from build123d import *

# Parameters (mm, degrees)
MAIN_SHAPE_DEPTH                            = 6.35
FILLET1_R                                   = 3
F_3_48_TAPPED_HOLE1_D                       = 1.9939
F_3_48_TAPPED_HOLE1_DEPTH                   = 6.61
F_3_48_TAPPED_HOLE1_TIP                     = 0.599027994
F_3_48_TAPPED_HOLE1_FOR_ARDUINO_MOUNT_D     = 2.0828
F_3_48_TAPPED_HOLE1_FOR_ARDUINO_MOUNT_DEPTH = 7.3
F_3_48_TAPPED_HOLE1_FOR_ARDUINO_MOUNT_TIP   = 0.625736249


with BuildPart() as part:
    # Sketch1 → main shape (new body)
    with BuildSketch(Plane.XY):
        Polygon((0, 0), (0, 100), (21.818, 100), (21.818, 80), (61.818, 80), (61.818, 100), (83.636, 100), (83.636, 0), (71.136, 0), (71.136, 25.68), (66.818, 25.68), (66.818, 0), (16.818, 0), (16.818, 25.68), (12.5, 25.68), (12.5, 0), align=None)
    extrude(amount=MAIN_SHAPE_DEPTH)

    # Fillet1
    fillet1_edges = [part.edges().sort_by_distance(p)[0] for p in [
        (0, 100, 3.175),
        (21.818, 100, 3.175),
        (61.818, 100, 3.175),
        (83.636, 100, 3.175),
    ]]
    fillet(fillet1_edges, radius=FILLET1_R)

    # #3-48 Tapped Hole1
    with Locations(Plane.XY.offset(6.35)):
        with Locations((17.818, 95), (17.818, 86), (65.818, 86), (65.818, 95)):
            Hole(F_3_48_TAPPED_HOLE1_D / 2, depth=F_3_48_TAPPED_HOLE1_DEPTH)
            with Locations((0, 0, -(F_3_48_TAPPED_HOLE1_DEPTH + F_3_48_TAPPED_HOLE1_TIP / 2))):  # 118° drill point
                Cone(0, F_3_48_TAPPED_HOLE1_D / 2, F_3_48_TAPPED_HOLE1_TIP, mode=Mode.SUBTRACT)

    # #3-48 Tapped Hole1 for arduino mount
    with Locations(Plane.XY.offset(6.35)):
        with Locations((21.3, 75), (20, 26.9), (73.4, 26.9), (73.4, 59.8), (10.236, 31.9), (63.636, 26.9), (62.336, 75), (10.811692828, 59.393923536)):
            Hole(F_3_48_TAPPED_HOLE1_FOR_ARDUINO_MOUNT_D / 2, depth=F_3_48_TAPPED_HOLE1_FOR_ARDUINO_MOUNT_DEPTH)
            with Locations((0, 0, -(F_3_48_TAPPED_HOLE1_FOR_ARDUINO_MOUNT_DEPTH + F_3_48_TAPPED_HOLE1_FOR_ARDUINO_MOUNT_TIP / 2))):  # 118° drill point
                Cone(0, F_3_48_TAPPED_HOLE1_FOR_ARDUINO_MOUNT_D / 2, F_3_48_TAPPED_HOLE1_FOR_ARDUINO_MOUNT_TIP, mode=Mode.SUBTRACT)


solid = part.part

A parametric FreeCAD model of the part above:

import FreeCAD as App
import Part
import Sketcher


def edges_at(feature, points):
    """Names of the edges that pass closest to the given points."""
    edges = feature.Shape.Edges
    near = lambda p: min(range(len(edges)), key=lambda i: edges[i].distToShape(Part.Vertex(*p))[0])
    return sorted({f"Edge{near(p) + 1}" for p in points})


def add_polygon(sketch, points):
    """Adds a closed chain of lines whose ends are joined by coincident constraints."""
    first, n = sketch.GeometryCount, len(points)
    for a, b in zip(points, points[1:] + points[:1]):
        sketch.addGeometry(Part.LineSegment(App.Vector(*a, 0), App.Vector(*b, 0)), False)
    for i in range(n):
        sketch.addConstraint(Sketcher.Constraint("Coincident", first + i, 2, first + (i + 1) % n, 1))

doc = App.newDocument("Part")
body = doc.addObject("PartDesign::Body", "Body")

# Sketch on XY plane
sketch1 = doc.addObject("Sketcher::SketchObject", "Sketch")
body.addObject(sketch1)
sketch1.AttachmentSupport = (doc.XY_Plane, [""])
sketch1.MapMode = "FlatFace"
add_polygon(sketch1, [(0, 100), (0, 0), (12.5, 0), (12.5, 25.7), (16.8, 25.7), (16.8, 0), (66.8, 0), (66.8, 25.7), (71.1, 25.7), (71.1, 0), (83.6, 0), (83.6, 100), (61.8, 100), (61.8, 80), (21.8, 80), (21.8, 100)])  # lines 0-15
sketch1.addConstraint([
    Sketcher.Constraint("Vertical", 0),
    Sketcher.Constraint("Horizontal", 1),
    Sketcher.Constraint("Vertical", 2),
    Sketcher.Constraint("Horizontal", 3),
    Sketcher.Constraint("Vertical", 4),
    Sketcher.Constraint("Horizontal", 5),
    Sketcher.Constraint("Vertical", 6),
    Sketcher.Constraint("Horizontal", 7),
    Sketcher.Constraint("Vertical", 8),
    Sketcher.Constraint("Horizontal", 9),
    Sketcher.Constraint("Vertical", 10),
    Sketcher.Constraint("Horizontal", 11),
    Sketcher.Constraint("Vertical", 12),
    Sketcher.Constraint("Horizontal", 13),
    Sketcher.Constraint("Vertical", 14),
    Sketcher.Constraint("Horizontal", 15),
    Sketcher.Constraint("Coincident", 0, 2, -1, 1),
    Sketcher.Constraint("PointOnObject", 4, 2, -1),
    Sketcher.Constraint("PointOnObject", 8, 2, -1),
    Sketcher.Constraint("Horizontal", 3, 2, 6, 2),
    Sketcher.Constraint("Horizontal", 11, 2, 14, 2),
    Sketcher.Constraint("Equal", 3, 7),
    Sketcher.Constraint("Equal", 1, 9),
    Sketcher.Constraint("Equal", 11, 15),
    Sketcher.Constraint("DistanceX", 5, 1, 5, 2, 50.0),
    Sketcher.Constraint("DistanceX", 13, 2, 13, 1, 40.0),
    Sketcher.Constraint("DistanceY", 0, 2, 0, 1, 100.0),
    Sketcher.Constraint("DistanceY", 12, 2, 12, 1, 20.0),
    Sketcher.Constraint("DistanceX", 1, 1, 1, 2, 12.5),
    Sketcher.Constraint("DistanceY", 2, 1, 2, 2, 25.68),
    Sketcher.Constraint("DistanceX", 3, 1, 3, 2, 4.318),
])
pad1 = doc.addObject("PartDesign::Pad", "Pad")
body.addObject(pad1)
pad1.Profile = sketch1
pad1.Length = 6.35
doc.recompute()

fillet = doc.addObject("PartDesign::Fillet", "Fillet")
body.addObject(fillet)
fillet.Base = (pad1, edges_at(pad1, [
    (0, 100, 3.175),
    (21.818, 100, 3.175),
    (61.818, 100, 3.175),
    (83.636, 100, 3.175),
]))
fillet.Radius = 3

# Sketch on XY plane
sketch2 = doc.addObject("Sketcher::SketchObject", "Sketch001")
body.addObject(sketch2)
sketch2.AttachmentSupport = (doc.XY_Plane, [""])
sketch2.MapMode = "FlatFace"
sketch2.AttachmentOffset = App.Placement(App.Vector(0, 0, 6.35), App.Rotation())
sketch2.addGeometry([
    Part.Circle(App.Vector(17.8, 95, 0), App.Vector(0, 0, 1), 1),
    Part.Circle(App.Vector(17.8, 86, 0), App.Vector(0, 0, 1), 1),
    Part.Circle(App.Vector(65.8, 86, 0), App.Vector(0, 0, 1), 1),
    Part.Circle(App.Vector(65.8, 95, 0), App.Vector(0, 0, 1), 1),
], False)
sketch2.addConstraint([
    Sketcher.Constraint("Equal", 0, 1),
    Sketcher.Constraint("Equal", 1, 2),
    Sketcher.Constraint("Equal", 2, 3),
    Sketcher.Constraint("Horizontal", 1, 3, 2, 3),
    Sketcher.Constraint("Horizontal", 0, 3, 3, 3),
    Sketcher.Constraint("Vertical", 0, 3, 1, 3),
    Sketcher.Constraint("Vertical", 2, 3, 3, 3),
    Sketcher.Constraint("DistanceY", -1, 1, 0, 3, 95.0),
    Sketcher.Constraint("DistanceY", -1, 1, 1, 3, 86.0),
    Sketcher.Constraint("DistanceX", 1, 3, 2, 3, 48.0),
    Sketcher.Constraint("Diameter", 0, 1.9939),
    Sketcher.Constraint("DistanceX", -1, 1, 0, 3, 17.818),
])
doc.recompute()
hole = doc.addObject("PartDesign::Hole", "Hole")
body.addObject(hole)
hole.Profile = sketch2
hole.ThreadType = "None"
hole.Diameter = 1.9939
hole.DepthType = "Dimension"
hole.Depth = 6.61
hole.DrillPoint = "Angled"
hole.DrillPointAngle = 118

# Sketch on XY plane
sketch3 = doc.addObject("Sketcher::SketchObject", "Sketch002")
body.addObject(sketch3)
sketch3.AttachmentSupport = (doc.XY_Plane, [""])
sketch3.MapMode = "FlatFace"
sketch3.AttachmentOffset = App.Placement(App.Vector(0, 0, 6.35), App.Rotation())
sketch3.addGeometry([
    Part.Circle(App.Vector(21.3, 75, 0), App.Vector(0, 0, 1), 1),  # 0
    Part.Circle(App.Vector(20, 26.9, 0), App.Vector(0, 0, 1), 1),  # 1
    Part.Circle(App.Vector(73.4, 26.9, 0), App.Vector(0, 0, 1), 1),  # 2
    Part.Circle(App.Vector(73.4, 59.8, 0), App.Vector(0, 0, 1), 1),  # 3
    Part.Circle(App.Vector(10.2, 31.9, 0), App.Vector(0, 0, 1), 1),  # 4
    Part.Circle(App.Vector(63.6, 26.9, 0), App.Vector(0, 0, 1), 1),  # 5
    Part.Circle(App.Vector(62.3, 75, 0), App.Vector(0, 0, 1), 1),  # 6
    Part.Circle(App.Vector(10.8, 59.4, 0), App.Vector(0, 0, 1), 1),  # 7
], False)
sketch3.addConstraint([
    Sketcher.Constraint("Equal", 0, 1),
    Sketcher.Constraint("Equal", 1, 2),
    Sketcher.Constraint("Equal", 2, 3),
    Sketcher.Constraint("Equal", 3, 4),
    Sketcher.Constraint("Equal", 4, 5),
    Sketcher.Constraint("Equal", 5, 6),
    Sketcher.Constraint("Equal", 6, 7),
    Sketcher.Constraint("Horizontal", 1, 3, 2, 3),
    Sketcher.Constraint("Horizontal", 2, 3, 5, 3),
    Sketcher.Constraint("Horizontal", 0, 3, 6, 3),
    Sketcher.Constraint("Vertical", 2, 3, 3, 3),
    Sketcher.Constraint("DistanceY", -1, 1, 0, 3, 75.0),
    Sketcher.Constraint("DistanceX", -1, 1, 1, 3, 20.0),
    Sketcher.Constraint("DistanceY", 1, 3, 4, 3, 5.0),
    Sketcher.Constraint("Diameter", 0, 2.0828),
    Sketcher.Constraint("DistanceX", -1, 1, 0, 3, 21.3),
    Sketcher.Constraint("DistanceY", -1, 1, 1, 3, 26.9),
    Sketcher.Constraint("DistanceX", -1, 1, 2, 3, 73.4),
    Sketcher.Constraint("DistanceY", -1, 1, 3, 3, 59.8),
    Sketcher.Constraint("DistanceX", 4, 3, 5, 3, 53.4),
    Sketcher.Constraint("DistanceX", 6, 3, 5, 3, 1.3),
    Sketcher.Constraint("DistanceX", -1, 1, 4, 3, 10.236),
    Sketcher.Constraint("DistanceX", -1, 1, 7, 3, 10.811693),
    Sketcher.Constraint("DistanceY", -1, 1, 7, 3, 59.393924),
])
doc.recompute()
hole2 = doc.addObject("PartDesign::Hole", "Hole001")
body.addObject(hole2)
hole2.Profile = sketch3
hole2.ThreadType = "None"
hole2.Diameter = 2.0828
hole2.DepthType = "Dimension"
hole2.Depth = 7.3
hole2.DrillPoint = "Angled"
hole2.DrillPointAngle = 118

doc.recompute()
